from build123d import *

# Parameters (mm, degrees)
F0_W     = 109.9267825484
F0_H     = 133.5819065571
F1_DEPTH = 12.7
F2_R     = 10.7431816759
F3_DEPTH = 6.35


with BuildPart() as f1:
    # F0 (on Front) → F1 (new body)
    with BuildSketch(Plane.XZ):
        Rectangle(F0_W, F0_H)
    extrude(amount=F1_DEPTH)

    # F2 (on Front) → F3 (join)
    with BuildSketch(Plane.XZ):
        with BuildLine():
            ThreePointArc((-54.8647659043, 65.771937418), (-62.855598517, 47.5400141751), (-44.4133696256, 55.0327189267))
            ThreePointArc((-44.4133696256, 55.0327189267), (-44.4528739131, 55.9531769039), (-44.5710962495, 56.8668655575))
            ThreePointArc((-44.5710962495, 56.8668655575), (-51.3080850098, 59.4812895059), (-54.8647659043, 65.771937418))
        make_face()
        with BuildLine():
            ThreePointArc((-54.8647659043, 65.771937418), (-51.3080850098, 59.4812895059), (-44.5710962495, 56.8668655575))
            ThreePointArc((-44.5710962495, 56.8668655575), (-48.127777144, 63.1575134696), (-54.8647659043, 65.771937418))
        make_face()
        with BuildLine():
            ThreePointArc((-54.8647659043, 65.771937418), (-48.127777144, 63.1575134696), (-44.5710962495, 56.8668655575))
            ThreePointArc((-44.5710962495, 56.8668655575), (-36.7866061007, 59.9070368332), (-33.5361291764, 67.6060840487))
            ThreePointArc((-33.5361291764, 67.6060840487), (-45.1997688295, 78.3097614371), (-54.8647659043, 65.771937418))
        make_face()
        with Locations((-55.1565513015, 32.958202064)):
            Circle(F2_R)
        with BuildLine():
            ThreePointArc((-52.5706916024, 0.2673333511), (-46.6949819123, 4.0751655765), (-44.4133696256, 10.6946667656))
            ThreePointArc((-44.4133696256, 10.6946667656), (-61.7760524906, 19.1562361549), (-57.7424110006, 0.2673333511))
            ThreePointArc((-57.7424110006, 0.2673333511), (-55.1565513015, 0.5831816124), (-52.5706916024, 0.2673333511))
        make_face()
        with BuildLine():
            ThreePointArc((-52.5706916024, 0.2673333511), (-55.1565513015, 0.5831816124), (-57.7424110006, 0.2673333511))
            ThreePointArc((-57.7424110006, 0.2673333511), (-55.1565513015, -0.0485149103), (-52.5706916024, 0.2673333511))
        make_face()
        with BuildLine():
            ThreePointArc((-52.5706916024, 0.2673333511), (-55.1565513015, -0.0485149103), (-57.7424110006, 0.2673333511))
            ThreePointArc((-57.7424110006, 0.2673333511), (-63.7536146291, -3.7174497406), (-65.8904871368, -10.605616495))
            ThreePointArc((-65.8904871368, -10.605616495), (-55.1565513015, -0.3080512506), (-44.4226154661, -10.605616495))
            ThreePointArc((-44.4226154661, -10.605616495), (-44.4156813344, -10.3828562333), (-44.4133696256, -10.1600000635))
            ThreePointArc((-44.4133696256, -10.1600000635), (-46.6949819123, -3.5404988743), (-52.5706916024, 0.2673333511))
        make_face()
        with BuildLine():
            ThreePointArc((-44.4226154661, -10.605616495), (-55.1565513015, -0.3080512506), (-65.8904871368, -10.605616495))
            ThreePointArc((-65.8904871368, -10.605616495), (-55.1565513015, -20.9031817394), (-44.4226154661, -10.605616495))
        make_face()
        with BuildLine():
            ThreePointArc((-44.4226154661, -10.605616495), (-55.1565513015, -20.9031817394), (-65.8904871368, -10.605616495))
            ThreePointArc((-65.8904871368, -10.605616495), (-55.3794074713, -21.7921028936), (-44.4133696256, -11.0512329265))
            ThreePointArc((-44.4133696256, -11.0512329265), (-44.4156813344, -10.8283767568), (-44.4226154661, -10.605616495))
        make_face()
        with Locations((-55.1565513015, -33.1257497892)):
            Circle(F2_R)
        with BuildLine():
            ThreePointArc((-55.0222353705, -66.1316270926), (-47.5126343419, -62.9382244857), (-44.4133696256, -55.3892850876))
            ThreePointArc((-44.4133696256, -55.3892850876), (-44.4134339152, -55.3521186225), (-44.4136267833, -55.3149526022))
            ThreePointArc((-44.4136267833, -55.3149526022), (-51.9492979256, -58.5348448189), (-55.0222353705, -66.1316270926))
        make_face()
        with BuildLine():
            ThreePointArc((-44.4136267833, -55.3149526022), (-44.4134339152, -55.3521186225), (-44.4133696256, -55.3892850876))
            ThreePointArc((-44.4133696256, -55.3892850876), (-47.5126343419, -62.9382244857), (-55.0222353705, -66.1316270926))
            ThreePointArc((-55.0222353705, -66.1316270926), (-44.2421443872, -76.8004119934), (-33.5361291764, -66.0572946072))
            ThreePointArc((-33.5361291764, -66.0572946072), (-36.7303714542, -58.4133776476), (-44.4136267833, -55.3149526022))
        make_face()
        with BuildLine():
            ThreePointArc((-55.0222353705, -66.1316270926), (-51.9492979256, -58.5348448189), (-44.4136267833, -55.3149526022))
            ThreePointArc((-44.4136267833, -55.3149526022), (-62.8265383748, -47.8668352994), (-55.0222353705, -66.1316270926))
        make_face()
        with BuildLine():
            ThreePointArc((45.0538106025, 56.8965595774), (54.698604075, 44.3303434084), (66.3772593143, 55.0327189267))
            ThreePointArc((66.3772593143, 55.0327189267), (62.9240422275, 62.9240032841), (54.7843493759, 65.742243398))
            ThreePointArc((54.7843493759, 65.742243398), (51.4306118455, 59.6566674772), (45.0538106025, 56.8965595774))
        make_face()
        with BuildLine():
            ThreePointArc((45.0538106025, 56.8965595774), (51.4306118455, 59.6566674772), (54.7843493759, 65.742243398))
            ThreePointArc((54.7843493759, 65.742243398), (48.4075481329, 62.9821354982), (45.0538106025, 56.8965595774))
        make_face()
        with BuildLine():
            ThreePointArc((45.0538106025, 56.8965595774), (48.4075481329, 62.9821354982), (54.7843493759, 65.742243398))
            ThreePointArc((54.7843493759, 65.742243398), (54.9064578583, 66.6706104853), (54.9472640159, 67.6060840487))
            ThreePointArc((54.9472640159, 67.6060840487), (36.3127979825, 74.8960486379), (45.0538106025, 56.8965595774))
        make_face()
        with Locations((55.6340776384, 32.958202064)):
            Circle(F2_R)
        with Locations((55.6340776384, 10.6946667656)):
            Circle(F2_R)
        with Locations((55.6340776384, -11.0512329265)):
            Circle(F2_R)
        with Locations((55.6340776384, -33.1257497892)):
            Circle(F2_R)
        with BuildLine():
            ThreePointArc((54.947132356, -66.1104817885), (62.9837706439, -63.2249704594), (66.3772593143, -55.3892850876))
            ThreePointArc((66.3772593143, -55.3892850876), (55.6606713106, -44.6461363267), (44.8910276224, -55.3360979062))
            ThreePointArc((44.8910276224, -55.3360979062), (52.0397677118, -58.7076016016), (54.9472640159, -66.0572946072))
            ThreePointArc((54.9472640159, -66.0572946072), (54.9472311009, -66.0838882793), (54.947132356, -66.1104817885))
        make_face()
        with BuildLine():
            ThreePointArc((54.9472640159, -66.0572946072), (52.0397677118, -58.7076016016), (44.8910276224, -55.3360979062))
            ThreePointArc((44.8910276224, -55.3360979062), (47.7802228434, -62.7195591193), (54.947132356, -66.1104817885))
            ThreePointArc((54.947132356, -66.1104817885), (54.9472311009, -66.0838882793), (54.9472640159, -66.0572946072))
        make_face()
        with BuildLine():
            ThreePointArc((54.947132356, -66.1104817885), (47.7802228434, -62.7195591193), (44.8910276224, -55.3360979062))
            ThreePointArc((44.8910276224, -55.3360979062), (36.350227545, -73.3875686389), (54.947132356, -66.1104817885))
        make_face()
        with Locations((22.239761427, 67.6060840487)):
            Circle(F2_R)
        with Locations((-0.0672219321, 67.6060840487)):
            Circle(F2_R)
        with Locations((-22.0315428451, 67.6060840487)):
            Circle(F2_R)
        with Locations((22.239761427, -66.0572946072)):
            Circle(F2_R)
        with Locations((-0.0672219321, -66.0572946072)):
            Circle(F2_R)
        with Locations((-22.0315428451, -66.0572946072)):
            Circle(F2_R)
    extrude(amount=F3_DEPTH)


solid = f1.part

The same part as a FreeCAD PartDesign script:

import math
import FreeCAD as App
import Part
import Sketcher
from FreeCAD import Vector
Q = App.Units.Quantity

doc = App.newDocument("Part")
body = doc.addObject("PartDesign::Body", "Body")

# Sketch on XZ plane
sketch1 = doc.addObject("Sketcher::SketchObject", "Sketch")
body.addObject(sketch1)
sketch1.AttachmentSupport = (doc.XZ_Plane, [""])
sketch1.MapMode = "FlatFace"
sketch1.addGeometry([
    Part.LineSegment(Vector(-55, 67, 0), Vector(-55, -67, 0)),
    Part.LineSegment(Vector(-55, -67, 0), Vector(55, -67, 0)),
    Part.LineSegment(Vector(55, -67, 0), Vector(55, 67, 0)),
    Part.LineSegment(Vector(55, 67, 0), Vector(-55, 67, 0)),
], False)
sketch1.addConstraint([
    Sketcher.Constraint("Coincident", 0, 2, 1, 1),
    Sketcher.Constraint("Coincident", 1, 2, 2, 1),
    Sketcher.Constraint("Coincident", 2, 2, 3, 1),
    Sketcher.Constraint("Coincident", 3, 2, 0, 1),
    Sketcher.Constraint("Vertical", 0),
    Sketcher.Constraint("Horizontal", 1),
    Sketcher.Constraint("Vertical", 2),
    Sketcher.Constraint("Horizontal", 3),
    Sketcher.Constraint("Symmetric", 0, 2, 2, 2, -1, 1),
    Sketcher.Constraint("DistanceX", 1, 1, 1, 2, 109.926783),
    Sketcher.Constraint("DistanceY", 0, 2, 0, 1, 133.581907),
])
pad1 = doc.addObject("PartDesign::Pad", "Pad")
body.addObject(pad1)
pad1.Profile = sketch1
pad1.Length = Q("0.5 in")

# Sketch on XZ plane
sketch2 = doc.addObject("Sketcher::SketchObject", "Sketch001")
body.addObject(sketch2)
sketch2.AttachmentSupport = (doc.XZ_Plane, [""])
sketch2.MapMode = "FlatFace"
sketch2.addGeometry([
    Part.ArcOfCircle(Part.Circle(Vector(-55.16, 55.03, 0), Vector(0, 0, 1), 10.74), math.radians(88), math.radians(360)),  # 0
    Part.ArcOfCircle(Part.Circle(Vector(-55.16, 55.03, 0), Vector(0, 0, 1), 10.74), math.radians(0), math.radians(9.83)),  # 1
    Part.ArcOfCircle(Part.Circle(Vector(-44.28, 67.61, 0), Vector(0, 0, 1), 10.74), math.radians(-92), math.radians(0)),  # 2
    Part.ArcOfCircle(Part.Circle(Vector(-44.28, 67.61, 0), Vector(0, 0, 1), 10.74), math.radians(0), math.radians(190)),  # 3
    Part.Circle(Vector(-55.16, 32.96, 0), Vector(0, 0, 1), 10.74),  # 4
    Part.ArcOfCircle(Part.Circle(Vector(-55.16, 10.69, 0), Vector(0, 0, 1), 10.74), math.radians(-76), math.radians(256)),  # 5
    Part.ArcOfCircle(Part.Circle(Vector(-55.16, -10.16, 0), Vector(0, 0, 1), 10.74), math.radians(104), math.radians(182)),  # 6
    Part.ArcOfCircle(Part.Circle(Vector(-55.16, -11.05, 0), Vector(0, 0, 1), 10.74), math.radians(178), math.radians(360)),  # 7
    Part.ArcOfCircle(Part.Circle(Vector(-55.16, -11.05, 0), Vector(0, 0, 1), 10.74), math.radians(0), math.radians(2.38)),  # 8
    Part.ArcOfCircle(Part.Circle(Vector(-55.16, -10.16, 0), Vector(0, 0, 1), 10.74), math.radians(-2.38), math.radians(0)),  # 9
    Part.ArcOfCircle(Part.Circle(Vector(-55.16, -10.16, 0), Vector(0, 0, 1), 10.74), math.radians(0), math.radians(76)),  # 10
    Part.Circle(Vector(-55.16, -33.13, 0), Vector(0, 0, 1), 10.74),  # 11
    Part.ArcOfCircle(Part.Circle(Vector(-44.28, -66.06, 0), Vector(0, 0, 1), 10.74), math.radians(-180), math.radians(0)),  # 12
    Part.ArcOfCircle(Part.Circle(Vector(-44.28, -66.06, 0), Vector(0, 0, 1), 10.74), math.radians(0), math.radians(91)),  # 13
    Part.ArcOfCircle(Part.Circle(Vector(-55.16, -55.39, 0), Vector(0, 0, 1), 10.74), math.radians(0), math.radians(271)),  # 14
    Part.ArcOfCircle(Part.Circle(Vector(55.63, 55.03, 0), Vector(0, 0, 1), 10.74), math.radians(170), math.radians(360)),  # 15
    Part.ArcOfCircle(Part.Circle(Vector(55.63, 55.03, 0), Vector(0, 0, 1), 10.74), math.radians(0), math.radians(95)),  # 16
    Part.ArcOfCircle(Part.Circle(Vector(44.2, 67.61, 0), Vector(0, 0, 1), 10.74), math.radians(-9.99), math.radians(0)),  # 17
    Part.ArcOfCircle(Part.Circle(Vector(44.2, 67.61, 0), Vector(0, 0, 1), 10.74), math.radians(0), math.radians(275)),  # 18
    Part.Circle(Vector(55.63, 32.96, 0), Vector(0, 0, 1), 10.74),  # 19
    Part.Circle(Vector(55.63, 10.69, 0), Vector(0, 0, 1), 10.74),  # 20
    Part.Circle(Vector(55.63, -11.05, 0), Vector(0, 0, 1), 10.74),  # 21
    Part.Circle(Vector(55.63, -33.13, 0), Vector(0, 0, 1), 10.74),  # 22
    Part.ArcOfCircle(Part.Circle(Vector(55.63, -55.39, 0), Vector(0, 0, 1), 10.74), math.radians(-94), math.radians(180)),  # 23
    Part.ArcOfCircle(Part.Circle(Vector(44.2, -66.06, 0), Vector(0, 0, 1), 10.74), math.radians(86), math.radians(360)),  # 24
    Part.Circle(Vector(22.24, 67.61, 0), Vector(0, 0, 1), 10.74),  # 25
    Part.Circle(Vector(-0.07, 67.61, 0), Vector(0, 0, 1), 10.74),  # 26
    Part.Circle(Vector(-22.03, 67.61, 0), Vector(0, 0, 1), 10.74),  # 27
    Part.Circle(Vector(22.24, -66.06, 0), Vector(0, 0, 1), 10.74),  # 28
    Part.Circle(Vector(-0.07, -66.06, 0), Vector(0, 0, 1), 10.74),  # 29
    Part.Circle(Vector(-22.03, -66.06, 0), Vector(0, 0, 1), 10.74),  # 30
], False)
sketch2.addConstraint([
    Sketcher.Constraint("Tangent", 0, 2, 1, 1),
    Sketcher.Constraint("Coincident", 1, 2, 2, 1),
    Sketcher.Constraint("Tangent", 2, 2, 3, 1),
    Sketcher.Constraint("Coincident", 3, 2, 0, 1),
    Sketcher.Constraint("Coincident", 5, 2, 6, 1),
    Sketcher.Constraint("Coincident", 6, 2, 7, 1),
    Sketcher.Constraint("Tangent", 7, 2, 8, 1),
    Sketcher.Constraint("Coincident", 8, 2, 9, 1),
    Sketcher.Constraint("Tangent", 9, 2, 10, 1),
    Sketcher.Constraint("Coincident", 10, 2, 5, 1),
    Sketcher.Constraint("Tangent", 12, 2, 13, 1),
    Sketcher.Constraint("Coincident", 13, 2, 14, 1),
    Sketcher.Constraint("Coincident", 14, 2, 12, 1),
    Sketcher.Constraint("Tangent", 15, 2, 16, 1),
    Sketcher.Constraint("Coincident", 16, 2, 17, 1),
    Sketcher.Constraint("Tangent", 17, 2, 18, 1),
    Sketcher.Constraint("Coincident", 18, 2, 15, 1),
    Sketcher.Constraint("Coincident", 23, 1, 24, 2),
    Sketcher.Constraint("Coincident", 24, 1, 23, 2),
    Sketcher.Constraint("Coincident", 9, 3, 6, 3),
    Sketcher.Constraint("Equal", 0, 1),
    Sketcher.Constraint("Equal", 1, 2),
    Sketcher.Constraint("Equal", 2, 3),
    Sketcher.Constraint("Equal", 3, 4),
    Sketcher.Constraint("Equal", 4, 5),
    Sketcher.Constraint("Equal", 5, 6),
    Sketcher.Constraint("Equal", 6, 7),
    Sketcher.Constraint("Equal", 7, 8),
    Sketcher.Constraint("Equal", 8, 9),
    Sketcher.Constraint("Equal", 9, 10),
    Sketcher.Constraint("Equal", 10, 11),
    Sketcher.Constraint("Equal", 11, 12),
    Sketcher.Constraint("Equal", 12, 13),
    Sketcher.Constraint("Equal", 13, 14),
    Sketcher.Constraint("Equal", 14, 15),
    Sketcher.Constraint("Equal", 15, 16),
    Sketcher.Constraint("Equal", 16, 17),
    Sketcher.Constraint("Equal", 17, 18),
    Sketcher.Constraint("Equal", 18, 19),
    Sketcher.Constraint("Equal", 19, 20),
    Sketcher.Constraint("Equal", 20, 21),
    Sketcher.Constraint("Equal", 21, 22),
    Sketcher.Constraint("Equal", 22, 23),
    Sketcher.Constraint("Equal", 23, 24),
    Sketcher.Constraint("Equal", 24, 25),
    Sketcher.Constraint("Equal", 25, 26),
    Sketcher.Constraint("Equal", 26, 27),
    Sketcher.Constraint("Equal", 27, 28),
    Sketcher.Constraint("Equal", 28, 29),
    Sketcher.Constraint("Equal", 29, 30),
    Sketcher.Constraint("Horizontal", 1, 3, 15, 3),
    Sketcher.Constraint("Horizontal", 3, 3, 17, 3),
    Sketcher.Constraint("Horizontal", 4, 3, 19, 3),
    Sketcher.Constraint("Horizontal", 5, 3, 20, 3),
    Sketcher.Constraint("Horizontal", 8, 3, 21, 3),
    Sketcher.Constraint("Horizontal", 11, 3, 22, 3),
    Sketcher.Constraint("Horizontal", 14, 3, 23, 3),
    Sketcher.Constraint("Horizontal", 13, 3, 24, 3),
    Sketcher.Constraint("Horizontal", 18, 3, 25, 3),
    Sketcher.Constraint("Horizontal", 25, 3, 26, 3),
    Sketcher.Constraint("Horizontal", 26, 3, 27, 3),
    Sketcher.Constraint("Horizontal", 24, 3, 28, 3),
    Sketcher.Constraint("Horizontal", 28, 3, 29, 3),
    Sketcher.Constraint("Horizontal", 29, 3, 30, 3),
    Sketcher.Constraint("Horizontal", 16, 3, 0, 2),
    Sketcher.Constraint("Horizontal", 27, 3, 2, 2),
    Sketcher.Constraint("Horizontal", 21, 3, 7, 2),
    Sketcher.Constraint("Horizontal", 6, 2, 8, 2),
    Sketcher.Constraint("Horizontal", 10, 3, 9, 2),
    Sketcher.Constraint("Horizontal", 5, 2, 10, 2),
    Sketcher.Constraint("Horizontal", 30, 3, 12, 2),
    Sketcher.Constraint("Horizontal", 0, 2, 15, 2),
    Sketcher.Constraint("Horizontal", 2, 2, 17, 2),
    Sketcher.Constraint("Vertical", 1, 3, 4, 3),
    Sketcher.Constraint("Vertical", 4, 3, 5, 3),
    Sketcher.Constraint("Vertical", 10, 3, 11, 3),
    Sketcher.Constraint("Vertical", 3, 3, 12, 3),
    Sketcher.Constraint("Vertical", 11, 3, 14, 3),
    Sketcher.Constraint("Vertical", 16, 3, 19, 3),
    Sketcher.Constraint("Vertical", 19, 3, 20, 3),
    Sketcher.Constraint("Vertical", 20, 3, 21, 3),
    Sketcher.Constraint("Vertical", 21, 3, 22, 3),
    Sketcher.Constraint("Vertical", 22, 3, 23, 3),
    Sketcher.Constraint("Vertical", 18, 3, 24, 3),
    Sketcher.Constraint("Vertical", 25, 3, 28, 3),
    Sketcher.Constraint("Vertical", 26, 3, 29, 3),
    Sketcher.Constraint("Vertical", 27, 3, 30, 3),
    Sketcher.Constraint("DistanceY", 6, 3, -1, 1, Q("0.4 in")),
    Sketcher.Constraint("DistanceX", 17, 3, 15, 3, Q("0.4499998 in")),
    Sketcher.Constraint("Radius", 0, 10.743182),
    Sketcher.Constraint("DistanceY", 7, 3, 5, 3, 21.7459),
    Sketcher.Constraint("DistanceX", 0, 3, -1, 1, 55.156551),
    Sketcher.Constraint("DistanceY", -1, 1, 0, 3, 55.032719),
    Sketcher.Constraint("DistanceX", 2, 3, -1, 1, 44.279311),
    Sketcher.Constraint("DistanceY", 11, 3, -1, 1, 33.12575),
    Sketcher.Constraint("DistanceX", -1, 1, 25, 3, 22.239761),
    Sketcher.Constraint("DistanceX", 26, 3, -1, 1, 0.067222),
    Sketcher.Constraint("DistanceX", 5, 2, -1, 1, 57.742411),
    Sketcher.Constraint("DistanceX", -1, 1, 15, 2, 66.377259),
    Sketcher.Constraint("DistanceX", -1, 1, 16, 2, 54.784349),
    Sketcher.Constraint("DistanceY", 23, 1, -1, 1, 66.110482),
    Sketcher.Constraint("DistanceY", 4, 3, 2, 3, 34.647882),
    Sketcher.Constraint("DistanceY", 12, 3, 8, 3, 55.006062),
    Sketcher.Constraint("DistanceX", 27, 3, 26, 3, 21.964321),
])
pad2 = doc.addObject("PartDesign::Pad", "Pad001")
body.addObject(pad2)
pad2.Profile = sketch2
pad2.Length = Q("0.25 in")

doc.recompute()
